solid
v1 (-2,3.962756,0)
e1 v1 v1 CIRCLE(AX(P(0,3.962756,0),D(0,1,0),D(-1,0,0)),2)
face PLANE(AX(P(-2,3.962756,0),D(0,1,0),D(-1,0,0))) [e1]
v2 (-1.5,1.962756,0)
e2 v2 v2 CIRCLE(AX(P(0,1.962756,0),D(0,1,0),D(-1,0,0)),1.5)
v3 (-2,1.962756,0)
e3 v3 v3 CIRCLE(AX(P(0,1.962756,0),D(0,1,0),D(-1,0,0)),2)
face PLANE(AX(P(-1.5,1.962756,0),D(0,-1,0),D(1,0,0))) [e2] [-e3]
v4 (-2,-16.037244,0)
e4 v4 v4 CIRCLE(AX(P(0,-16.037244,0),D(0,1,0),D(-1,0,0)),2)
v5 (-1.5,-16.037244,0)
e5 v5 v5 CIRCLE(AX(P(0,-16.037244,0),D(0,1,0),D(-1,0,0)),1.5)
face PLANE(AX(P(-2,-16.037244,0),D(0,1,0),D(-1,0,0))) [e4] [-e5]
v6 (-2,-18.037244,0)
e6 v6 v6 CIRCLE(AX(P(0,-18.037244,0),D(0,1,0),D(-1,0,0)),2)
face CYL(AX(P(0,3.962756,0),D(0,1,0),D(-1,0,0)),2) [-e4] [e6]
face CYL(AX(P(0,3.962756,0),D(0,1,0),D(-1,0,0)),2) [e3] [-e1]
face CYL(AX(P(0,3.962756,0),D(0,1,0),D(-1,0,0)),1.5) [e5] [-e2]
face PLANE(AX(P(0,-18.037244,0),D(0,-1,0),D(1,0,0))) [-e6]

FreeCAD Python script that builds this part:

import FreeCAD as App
import Part
import Sketcher
from FreeCAD import Vector
Q = App.Units.Quantity


def add_polygon(sketch, points):
    """Adds a closed chain of lines whose ends are joined by coincident constraints."""
    first, n = sketch.GeometryCount, len(points)
    for a, b in zip(points, points[1:] + points[:1]):
        sketch.addGeometry(Part.LineSegment(App.Vector(*a, 0), App.Vector(*b, 0)), False)
    for i in range(n):
        sketch.addConstraint(Sketcher.Constraint("Coincident", first + i, 2, first + (i + 1) % n, 1))

doc = App.newDocument("Part")
body = doc.addObject("PartDesign::Body", "Body")

# Sketch on XY plane
sketch1 = doc.addObject("Sketcher::SketchObject", "Sketch")
body.addObject(sketch1)
sketch1.AttachmentSupport = (doc.XY_Plane, [""])
sketch1.MapMode = "FlatFace"
add_polygon(sketch1, [(0, -18.037244), (0, 3.962756), (-2, 3.962756), (-2, 1.962756), (-1.5, 1.962756), (-1.5, -16.037244), (-2, -16.037244), (-2, -18.037244)])  # lines 0-7
sketch1.addConstraint(Sketcher.Constraint("Vertical", 0))
sketch1.addConstraint(Sketcher.Constraint("Horizontal", 1))
sketch1.addConstraint(Sketcher.Constraint("Vertical", 2))
sketch1.addConstraint(Sketcher.Constraint("Horizontal", 3))
sketch1.addConstraint(Sketcher.Constraint("Vertical", 4))
sketch1.addConstraint(Sketcher.Constraint("Horizontal", 5))
sketch1.addConstraint(Sketcher.Constraint("Vertical", 6))
sketch1.addConstraint(Sketcher.Constraint("Horizontal", 7))
sketch1.addConstraint(Sketcher.Constraint("PointOnObject", 0, 2, -2))
sketch1.addConstraint(Sketcher.Constraint("Vertical", 2, 2, 5, 2))
sketch1.addConstraint(Sketcher.Constraint("Equal", 7, 2))
sketch1.addConstraint(Sketcher.Constraint("Equal", 2, 6))
sketch1.addConstraint(Sketcher.Constraint("DistanceX", 1, 2, 1, 1, Q("2 mm")))
sketch1.addConstraint(Sketcher.Constraint("DistanceY", 0, 1, 0, 2, Q("22 mm")))
sketch1.addConstraint(Sketcher.Constraint("DistanceX", 3, 1, 3, 2, Q("0.5 mm")))
sketch1.addConstraint(Sketcher.Constraint("DistanceY", -1, 1, 0, 2, Q("3.962756 mm")))
revolution = doc.addObject("PartDesign::Revolution", "Revolution")
body.addObject(revolution)
revolution.Profile = sketch1
revolution.ReferenceAxis = (sketch1, ["V_Axis"])
revolution.Angle = 360

doc.recompute()
